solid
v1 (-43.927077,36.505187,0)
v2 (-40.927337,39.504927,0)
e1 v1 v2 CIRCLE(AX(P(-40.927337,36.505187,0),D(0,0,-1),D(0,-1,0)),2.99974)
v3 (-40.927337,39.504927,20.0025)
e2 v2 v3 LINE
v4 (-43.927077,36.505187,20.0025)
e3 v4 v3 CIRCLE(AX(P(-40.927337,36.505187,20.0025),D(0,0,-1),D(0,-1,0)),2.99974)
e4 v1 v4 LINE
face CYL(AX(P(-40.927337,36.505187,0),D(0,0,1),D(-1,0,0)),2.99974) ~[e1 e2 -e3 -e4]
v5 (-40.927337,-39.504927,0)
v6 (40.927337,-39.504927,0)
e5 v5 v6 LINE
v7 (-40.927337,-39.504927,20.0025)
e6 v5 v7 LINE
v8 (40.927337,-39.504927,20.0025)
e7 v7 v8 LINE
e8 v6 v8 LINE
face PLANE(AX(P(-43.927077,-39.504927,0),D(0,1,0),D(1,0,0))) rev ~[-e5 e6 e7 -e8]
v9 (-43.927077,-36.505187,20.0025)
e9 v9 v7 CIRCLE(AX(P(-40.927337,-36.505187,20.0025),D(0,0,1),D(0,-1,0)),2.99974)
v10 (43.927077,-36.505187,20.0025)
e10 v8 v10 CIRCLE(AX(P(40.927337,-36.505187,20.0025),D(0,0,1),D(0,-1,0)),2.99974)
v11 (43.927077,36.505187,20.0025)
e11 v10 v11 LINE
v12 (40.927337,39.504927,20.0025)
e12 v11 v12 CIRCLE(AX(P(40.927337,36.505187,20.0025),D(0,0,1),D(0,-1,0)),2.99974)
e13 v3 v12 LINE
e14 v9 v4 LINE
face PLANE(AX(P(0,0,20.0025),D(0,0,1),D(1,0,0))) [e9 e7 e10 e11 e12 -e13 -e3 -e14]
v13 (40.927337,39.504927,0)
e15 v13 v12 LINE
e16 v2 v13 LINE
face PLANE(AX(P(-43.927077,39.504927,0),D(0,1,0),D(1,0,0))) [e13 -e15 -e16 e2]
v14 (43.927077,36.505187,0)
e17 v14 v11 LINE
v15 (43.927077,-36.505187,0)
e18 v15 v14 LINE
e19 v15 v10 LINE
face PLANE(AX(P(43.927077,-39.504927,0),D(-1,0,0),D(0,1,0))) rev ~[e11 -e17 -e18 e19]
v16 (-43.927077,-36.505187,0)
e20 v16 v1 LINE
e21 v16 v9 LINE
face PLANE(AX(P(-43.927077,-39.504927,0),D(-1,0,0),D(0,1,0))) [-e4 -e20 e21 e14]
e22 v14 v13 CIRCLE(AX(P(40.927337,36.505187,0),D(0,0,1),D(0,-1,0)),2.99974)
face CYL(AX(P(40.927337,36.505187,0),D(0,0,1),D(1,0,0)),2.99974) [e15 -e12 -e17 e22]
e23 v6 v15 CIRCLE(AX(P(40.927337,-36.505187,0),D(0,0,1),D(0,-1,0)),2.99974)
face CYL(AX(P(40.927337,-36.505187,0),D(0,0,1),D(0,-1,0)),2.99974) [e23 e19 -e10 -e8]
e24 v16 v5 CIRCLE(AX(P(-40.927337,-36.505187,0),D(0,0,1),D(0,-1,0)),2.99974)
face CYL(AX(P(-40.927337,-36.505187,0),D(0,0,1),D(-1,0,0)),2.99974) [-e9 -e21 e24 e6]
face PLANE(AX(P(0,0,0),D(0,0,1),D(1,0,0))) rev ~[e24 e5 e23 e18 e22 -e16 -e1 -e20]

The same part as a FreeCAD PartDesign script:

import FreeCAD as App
import Part
import Sketcher
from FreeCAD import Vector
Q = App.Units.Quantity


def edges_at(feature, points):
    """Names of the edges that pass closest to the given points."""
    edges = feature.Shape.Edges
    near = lambda p: min(range(len(edges)), key=lambda i: edges[i].distToShape(Part.Vertex(*p))[0])
    return sorted({f"Edge{near(p) + 1}" for p in points})


def add_polygon(sketch, points):
    """Adds a closed chain of lines whose ends are joined by coincident constraints."""
    first, n = sketch.GeometryCount, len(points)
    for a, b in zip(points, points[1:] + points[:1]):
        sketch.addGeometry(Part.LineSegment(App.Vector(*a, 0), App.Vector(*b, 0)), False)
    for i in range(n):
        sketch.addConstraint(Sketcher.Constraint("Coincident", first + i, 2, first + (i + 1) % n, 1))

doc = App.newDocument("Part")
body = doc.addObject("PartDesign::Body", "Body")

# Sketch on XY plane
sketch1 = body.newObject("Sketcher::SketchObject", "Sketch")
sketch1.AttachmentSupport = (doc.getObject("XY_Plane"), [""])
sketch1.MapMode = "FlatFace"
add_polygon(sketch1, [(-44, 40), (-44, -40), (44, -40), (44, 40)])  # lines 0-3
sketch1.addConstraint([
    Sketcher.Constraint("Vertical", 0),
    Sketcher.Constraint("Horizontal", 1),
    Sketcher.Constraint("Vertical", 2),
    Sketcher.Constraint("Horizontal", 3),
    Sketcher.Constraint("Symmetric", 0, 2, 2, 2, -1, 1),
    Sketcher.Constraint("DistanceX", 1, 1, 1, 2, Q("87.854154 mm")),
    Sketcher.Constraint("DistanceY", 0, 2, 0, 1, Q("79.009854 mm")),
])
pad1 = body.newObject("PartDesign::Pad", "Pad")
pad1.Profile = sketch1
pad1.Length = 20.0025
doc.recompute()

fillet = body.newObject("PartDesign::Fillet", "Fillet")
fillet.Base = (pad1, edges_at(pad1, [(-43.927, -39.505, 10.001), (43.927, -39.505, 10.001), (43.927, 39.505, 10.001)]))
fillet.Radius = 2.99974
doc.recompute()

fillet2 = body.newObject("PartDesign::Fillet", "Fillet001")
fillet2.Base = (fillet, edges_at(fillet, [(-43.927, 39.505, 10.001)]))
fillet2.Radius = 2.99974

doc.recompute()
